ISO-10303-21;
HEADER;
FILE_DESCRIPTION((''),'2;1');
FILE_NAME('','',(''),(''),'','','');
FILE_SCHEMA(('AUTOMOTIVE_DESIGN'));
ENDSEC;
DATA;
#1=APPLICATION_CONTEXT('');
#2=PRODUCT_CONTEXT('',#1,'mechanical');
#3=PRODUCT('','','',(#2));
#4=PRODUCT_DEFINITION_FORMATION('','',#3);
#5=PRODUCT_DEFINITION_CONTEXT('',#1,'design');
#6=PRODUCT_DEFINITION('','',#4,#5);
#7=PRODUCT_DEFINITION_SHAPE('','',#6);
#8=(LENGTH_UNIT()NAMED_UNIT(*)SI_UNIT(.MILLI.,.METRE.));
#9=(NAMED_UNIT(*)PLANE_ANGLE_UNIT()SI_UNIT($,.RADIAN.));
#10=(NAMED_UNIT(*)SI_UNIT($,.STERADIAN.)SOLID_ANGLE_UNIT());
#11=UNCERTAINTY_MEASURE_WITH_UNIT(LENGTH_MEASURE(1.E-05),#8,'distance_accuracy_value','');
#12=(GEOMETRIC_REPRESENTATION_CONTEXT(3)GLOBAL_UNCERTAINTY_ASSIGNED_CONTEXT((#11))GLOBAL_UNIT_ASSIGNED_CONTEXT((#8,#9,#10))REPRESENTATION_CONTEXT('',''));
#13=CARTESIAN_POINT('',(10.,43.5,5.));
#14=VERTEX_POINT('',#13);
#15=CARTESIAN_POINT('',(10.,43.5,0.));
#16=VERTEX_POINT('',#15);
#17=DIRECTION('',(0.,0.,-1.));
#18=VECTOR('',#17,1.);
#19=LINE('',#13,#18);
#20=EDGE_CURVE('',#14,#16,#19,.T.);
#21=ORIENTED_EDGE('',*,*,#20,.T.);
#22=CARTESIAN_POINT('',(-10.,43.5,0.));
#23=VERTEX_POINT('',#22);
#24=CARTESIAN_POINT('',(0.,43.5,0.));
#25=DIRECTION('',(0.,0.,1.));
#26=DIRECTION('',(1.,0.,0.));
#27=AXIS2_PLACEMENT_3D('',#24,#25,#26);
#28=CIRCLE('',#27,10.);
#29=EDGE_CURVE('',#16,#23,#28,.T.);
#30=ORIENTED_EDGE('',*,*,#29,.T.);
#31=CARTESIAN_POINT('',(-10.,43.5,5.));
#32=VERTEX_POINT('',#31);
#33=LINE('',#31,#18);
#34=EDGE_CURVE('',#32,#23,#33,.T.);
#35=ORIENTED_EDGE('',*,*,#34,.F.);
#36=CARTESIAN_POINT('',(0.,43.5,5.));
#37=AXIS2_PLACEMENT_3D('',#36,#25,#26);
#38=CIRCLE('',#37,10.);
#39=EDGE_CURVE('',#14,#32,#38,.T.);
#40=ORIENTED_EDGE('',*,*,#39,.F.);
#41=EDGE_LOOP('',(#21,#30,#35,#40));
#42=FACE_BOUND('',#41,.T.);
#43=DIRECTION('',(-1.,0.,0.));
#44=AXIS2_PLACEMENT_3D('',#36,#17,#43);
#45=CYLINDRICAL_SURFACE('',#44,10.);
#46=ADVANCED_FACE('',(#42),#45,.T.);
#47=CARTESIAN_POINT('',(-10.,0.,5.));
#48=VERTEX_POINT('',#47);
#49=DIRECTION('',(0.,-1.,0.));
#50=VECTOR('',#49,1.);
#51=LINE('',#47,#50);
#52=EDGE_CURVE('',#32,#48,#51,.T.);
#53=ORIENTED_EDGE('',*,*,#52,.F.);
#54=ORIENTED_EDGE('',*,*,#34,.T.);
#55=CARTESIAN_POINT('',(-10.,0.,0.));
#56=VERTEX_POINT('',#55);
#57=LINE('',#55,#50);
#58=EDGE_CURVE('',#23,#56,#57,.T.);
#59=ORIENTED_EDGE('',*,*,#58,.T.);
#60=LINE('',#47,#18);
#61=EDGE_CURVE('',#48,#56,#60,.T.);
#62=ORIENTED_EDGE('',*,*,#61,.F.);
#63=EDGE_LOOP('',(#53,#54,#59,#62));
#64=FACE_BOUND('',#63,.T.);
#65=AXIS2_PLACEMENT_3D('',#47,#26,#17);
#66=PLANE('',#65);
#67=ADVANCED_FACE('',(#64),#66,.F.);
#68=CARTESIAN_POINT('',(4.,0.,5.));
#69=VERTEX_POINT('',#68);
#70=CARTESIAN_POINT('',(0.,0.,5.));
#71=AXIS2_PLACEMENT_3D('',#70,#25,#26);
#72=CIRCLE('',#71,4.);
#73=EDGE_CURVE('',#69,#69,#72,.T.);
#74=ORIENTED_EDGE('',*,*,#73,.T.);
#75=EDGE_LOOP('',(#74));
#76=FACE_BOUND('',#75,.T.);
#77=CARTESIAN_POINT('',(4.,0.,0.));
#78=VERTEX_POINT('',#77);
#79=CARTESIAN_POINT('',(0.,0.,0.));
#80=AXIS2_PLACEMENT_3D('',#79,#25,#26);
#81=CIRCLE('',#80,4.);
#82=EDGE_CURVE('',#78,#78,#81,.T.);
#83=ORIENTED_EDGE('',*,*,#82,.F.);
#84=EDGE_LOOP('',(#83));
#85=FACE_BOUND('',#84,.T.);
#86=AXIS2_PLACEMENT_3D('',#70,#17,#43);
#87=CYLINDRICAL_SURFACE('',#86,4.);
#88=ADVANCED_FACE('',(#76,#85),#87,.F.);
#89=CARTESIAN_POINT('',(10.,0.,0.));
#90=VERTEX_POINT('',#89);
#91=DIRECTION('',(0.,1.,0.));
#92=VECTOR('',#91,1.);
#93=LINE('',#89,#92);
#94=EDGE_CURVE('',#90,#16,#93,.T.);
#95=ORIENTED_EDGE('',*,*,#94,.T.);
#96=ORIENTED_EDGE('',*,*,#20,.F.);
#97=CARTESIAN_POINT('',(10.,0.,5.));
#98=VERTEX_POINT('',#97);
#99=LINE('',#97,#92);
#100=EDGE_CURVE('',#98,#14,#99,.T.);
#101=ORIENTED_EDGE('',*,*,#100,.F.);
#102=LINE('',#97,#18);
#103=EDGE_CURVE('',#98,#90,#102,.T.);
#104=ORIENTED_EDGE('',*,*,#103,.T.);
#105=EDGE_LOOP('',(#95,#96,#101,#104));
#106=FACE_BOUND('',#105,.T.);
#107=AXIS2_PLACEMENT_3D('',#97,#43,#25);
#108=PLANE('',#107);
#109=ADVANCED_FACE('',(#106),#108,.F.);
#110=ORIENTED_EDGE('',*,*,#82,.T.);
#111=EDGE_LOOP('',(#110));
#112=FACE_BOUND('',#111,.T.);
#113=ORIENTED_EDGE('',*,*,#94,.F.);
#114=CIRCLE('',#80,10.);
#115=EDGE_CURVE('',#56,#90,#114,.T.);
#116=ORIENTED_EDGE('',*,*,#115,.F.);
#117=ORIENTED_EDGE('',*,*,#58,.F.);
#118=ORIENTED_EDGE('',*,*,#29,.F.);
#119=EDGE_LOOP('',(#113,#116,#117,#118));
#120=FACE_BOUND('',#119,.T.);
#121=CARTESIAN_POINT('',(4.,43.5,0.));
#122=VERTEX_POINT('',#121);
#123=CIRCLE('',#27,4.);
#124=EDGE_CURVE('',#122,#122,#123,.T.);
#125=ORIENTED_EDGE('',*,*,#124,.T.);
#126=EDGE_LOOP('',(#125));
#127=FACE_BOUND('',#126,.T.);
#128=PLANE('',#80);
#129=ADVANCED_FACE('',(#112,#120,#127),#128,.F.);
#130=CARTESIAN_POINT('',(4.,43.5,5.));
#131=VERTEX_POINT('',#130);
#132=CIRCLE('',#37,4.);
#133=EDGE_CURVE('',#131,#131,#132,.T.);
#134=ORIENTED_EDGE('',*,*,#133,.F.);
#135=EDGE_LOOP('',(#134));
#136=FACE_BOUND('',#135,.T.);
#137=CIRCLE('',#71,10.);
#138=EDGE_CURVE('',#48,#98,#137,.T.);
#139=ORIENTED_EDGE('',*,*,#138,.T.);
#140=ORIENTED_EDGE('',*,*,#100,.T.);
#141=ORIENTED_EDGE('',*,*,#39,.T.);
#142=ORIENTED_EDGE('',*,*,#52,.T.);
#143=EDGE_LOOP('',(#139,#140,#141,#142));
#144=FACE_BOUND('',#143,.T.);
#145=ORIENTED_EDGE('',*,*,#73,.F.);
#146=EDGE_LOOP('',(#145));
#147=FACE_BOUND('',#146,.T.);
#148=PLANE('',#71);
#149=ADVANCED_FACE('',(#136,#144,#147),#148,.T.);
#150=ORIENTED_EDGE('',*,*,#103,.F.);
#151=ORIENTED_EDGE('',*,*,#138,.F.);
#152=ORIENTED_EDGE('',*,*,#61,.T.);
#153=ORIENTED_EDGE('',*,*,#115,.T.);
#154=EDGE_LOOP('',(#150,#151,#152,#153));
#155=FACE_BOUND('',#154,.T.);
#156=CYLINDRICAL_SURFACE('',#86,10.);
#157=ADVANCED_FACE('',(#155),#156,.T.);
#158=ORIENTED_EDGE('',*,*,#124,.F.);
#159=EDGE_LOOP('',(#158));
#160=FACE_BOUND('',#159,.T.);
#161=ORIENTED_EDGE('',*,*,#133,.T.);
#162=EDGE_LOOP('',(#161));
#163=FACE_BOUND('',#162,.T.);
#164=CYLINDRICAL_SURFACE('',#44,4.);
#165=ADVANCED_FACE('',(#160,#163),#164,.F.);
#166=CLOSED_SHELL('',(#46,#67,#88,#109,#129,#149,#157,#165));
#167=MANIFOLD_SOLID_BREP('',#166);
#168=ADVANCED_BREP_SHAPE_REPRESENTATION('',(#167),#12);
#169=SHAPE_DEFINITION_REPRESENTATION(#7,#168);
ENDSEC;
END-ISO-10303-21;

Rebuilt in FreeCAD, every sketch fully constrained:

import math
import FreeCAD as App
import Part
import Sketcher
Q = App.Units.Quantity

doc = App.newDocument("Part")
body = doc.addObject("PartDesign::Body", "Body")

# Sketch on XY plane
sketch1 = doc.addObject("Sketcher::SketchObject", "Sketch")
body.addObject(sketch1)
sketch1.AttachmentSupport = (doc.XY_Plane, [""])
sketch1.MapMode = "FlatFace"
sketch1.addGeometry([
    Part.LineSegment(App.Vector(-10, 43.5, 0), App.Vector(-10, 0, 0)),  # 0
    Part.ArcOfCircle(Part.Circle(App.Vector(0, 0, 0), App.Vector(0, 0, 1), 10), math.radians(180), math.radians(360)),  # 1
    Part.LineSegment(App.Vector(10, 0, 0), App.Vector(10, 43.5, 0)),  # 2
    Part.ArcOfCircle(Part.Circle(App.Vector(0, 43.5, 0), App.Vector(0, 0, 1), 10), math.radians(0), math.radians(180)),  # 3
    Part.Circle(App.Vector(0, 0, 0), App.Vector(0, 0, 1), 4),  # 4
    Part.Circle(App.Vector(0, 43.5, 0), App.Vector(0, 0, 1), 4),  # 5
], False)
sketch1.addConstraint([
    Sketcher.Constraint("Tangent", 0, 2, 1, 1),
    Sketcher.Constraint("Tangent", 1, 2, 2, 1),
    Sketcher.Constraint("Tangent", 2, 2, 3, 1),
    Sketcher.Constraint("Tangent", 3, 2, 0, 1),
    Sketcher.Constraint("Vertical", 0),
    Sketcher.Constraint("Vertical", 2),
    Sketcher.Constraint("Coincident", 1, 3, -1, 1),
    Sketcher.Constraint("Coincident", 4, 3, -1, 1),
    Sketcher.Constraint("Coincident", 5, 3, 3, 3),
    Sketcher.Constraint("Equal", 4, 5),
    Sketcher.Constraint("Diameter", 4, Q("8 mm")),
    Sketcher.Constraint("Radius", 1, Q("10 mm")),
    Sketcher.Constraint("DistanceY", 0, 2, 0, 1, Q("43.5 mm")),
])
pad1 = doc.addObject("PartDesign::Pad", "Pad")
body.addObject(pad1)
pad1.Profile = sketch1
pad1.Length = 5

doc.recompute()
